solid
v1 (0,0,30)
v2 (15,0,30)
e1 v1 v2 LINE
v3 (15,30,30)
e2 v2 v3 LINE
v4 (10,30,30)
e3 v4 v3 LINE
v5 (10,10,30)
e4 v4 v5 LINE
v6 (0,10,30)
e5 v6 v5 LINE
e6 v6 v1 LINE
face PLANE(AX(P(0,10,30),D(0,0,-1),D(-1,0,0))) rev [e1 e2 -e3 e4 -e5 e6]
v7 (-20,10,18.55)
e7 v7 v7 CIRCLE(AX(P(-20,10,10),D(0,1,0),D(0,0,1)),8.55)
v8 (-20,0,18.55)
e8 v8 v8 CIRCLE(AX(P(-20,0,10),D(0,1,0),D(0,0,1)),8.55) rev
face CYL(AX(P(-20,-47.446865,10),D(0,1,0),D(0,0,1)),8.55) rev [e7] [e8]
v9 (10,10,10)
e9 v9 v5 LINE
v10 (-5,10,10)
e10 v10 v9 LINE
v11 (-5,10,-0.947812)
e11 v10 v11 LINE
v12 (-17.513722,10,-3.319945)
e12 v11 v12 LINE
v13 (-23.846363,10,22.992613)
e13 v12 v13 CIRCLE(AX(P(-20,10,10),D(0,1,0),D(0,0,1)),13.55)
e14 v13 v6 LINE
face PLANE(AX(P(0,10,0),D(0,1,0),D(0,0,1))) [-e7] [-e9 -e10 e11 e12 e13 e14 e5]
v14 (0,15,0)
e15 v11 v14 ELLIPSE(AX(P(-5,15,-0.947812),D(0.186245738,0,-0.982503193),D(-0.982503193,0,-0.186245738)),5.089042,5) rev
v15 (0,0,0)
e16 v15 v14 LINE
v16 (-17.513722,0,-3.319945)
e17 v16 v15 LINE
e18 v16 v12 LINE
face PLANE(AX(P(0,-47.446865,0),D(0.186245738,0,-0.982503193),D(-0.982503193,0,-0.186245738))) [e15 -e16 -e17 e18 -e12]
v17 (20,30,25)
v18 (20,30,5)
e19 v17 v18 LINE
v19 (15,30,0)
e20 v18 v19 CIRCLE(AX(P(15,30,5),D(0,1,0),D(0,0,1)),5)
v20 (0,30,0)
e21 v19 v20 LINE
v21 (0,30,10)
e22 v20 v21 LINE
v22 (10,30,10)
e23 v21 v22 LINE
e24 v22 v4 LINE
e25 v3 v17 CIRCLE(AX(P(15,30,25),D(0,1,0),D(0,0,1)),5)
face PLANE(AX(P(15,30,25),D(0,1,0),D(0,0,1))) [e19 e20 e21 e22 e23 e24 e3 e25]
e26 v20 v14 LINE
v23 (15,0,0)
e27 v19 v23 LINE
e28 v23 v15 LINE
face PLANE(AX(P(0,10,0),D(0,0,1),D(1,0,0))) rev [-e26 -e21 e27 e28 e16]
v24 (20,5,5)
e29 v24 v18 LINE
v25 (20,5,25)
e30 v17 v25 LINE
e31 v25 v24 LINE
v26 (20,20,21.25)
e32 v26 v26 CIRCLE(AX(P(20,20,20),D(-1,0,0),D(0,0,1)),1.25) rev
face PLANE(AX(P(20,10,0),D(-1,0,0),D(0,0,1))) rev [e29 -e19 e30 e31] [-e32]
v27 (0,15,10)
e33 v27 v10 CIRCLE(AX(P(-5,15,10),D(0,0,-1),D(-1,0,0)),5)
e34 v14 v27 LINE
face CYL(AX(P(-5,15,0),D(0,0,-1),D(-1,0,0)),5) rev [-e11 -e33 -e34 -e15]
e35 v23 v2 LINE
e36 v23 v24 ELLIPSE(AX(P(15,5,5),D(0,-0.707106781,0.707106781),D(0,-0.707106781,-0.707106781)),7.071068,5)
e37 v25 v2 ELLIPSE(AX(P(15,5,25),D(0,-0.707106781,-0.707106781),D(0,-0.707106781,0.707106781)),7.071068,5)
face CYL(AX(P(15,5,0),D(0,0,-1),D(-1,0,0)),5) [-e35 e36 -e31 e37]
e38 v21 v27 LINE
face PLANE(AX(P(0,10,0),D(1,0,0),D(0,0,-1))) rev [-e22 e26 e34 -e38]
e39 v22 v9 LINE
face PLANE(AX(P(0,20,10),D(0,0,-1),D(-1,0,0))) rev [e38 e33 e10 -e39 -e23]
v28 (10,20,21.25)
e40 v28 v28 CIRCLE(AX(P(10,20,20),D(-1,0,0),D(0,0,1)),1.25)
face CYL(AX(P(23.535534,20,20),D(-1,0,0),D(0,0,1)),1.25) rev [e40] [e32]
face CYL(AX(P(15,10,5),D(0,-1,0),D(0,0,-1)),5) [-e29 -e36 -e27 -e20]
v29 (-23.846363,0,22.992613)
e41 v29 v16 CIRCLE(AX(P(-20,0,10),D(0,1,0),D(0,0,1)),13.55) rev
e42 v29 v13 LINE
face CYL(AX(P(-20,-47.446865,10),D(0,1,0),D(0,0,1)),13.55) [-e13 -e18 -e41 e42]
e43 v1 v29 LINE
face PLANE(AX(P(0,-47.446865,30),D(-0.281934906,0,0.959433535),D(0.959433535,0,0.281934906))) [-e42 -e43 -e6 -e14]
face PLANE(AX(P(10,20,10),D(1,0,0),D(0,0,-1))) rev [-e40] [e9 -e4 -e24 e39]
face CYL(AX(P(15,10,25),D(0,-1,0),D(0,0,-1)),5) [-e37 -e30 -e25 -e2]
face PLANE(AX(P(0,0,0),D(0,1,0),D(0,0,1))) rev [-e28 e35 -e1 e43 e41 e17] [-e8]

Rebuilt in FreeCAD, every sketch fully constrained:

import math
import FreeCAD as App
import Part
import Sketcher

V = App.Vector


def edges_at(feature, points):
    """Names of the edges that pass closest to the given points."""
    edges = feature.Shape.Edges
    near = lambda p: min(range(len(edges)), key=lambda i: edges[i].distToShape(Part.Vertex(*p))[0])
    return sorted({f"Edge{near(p) + 1}" for p in points})


def add_polygon(sketch, points):
    """Adds a closed chain of lines whose ends are joined by coincident constraints."""
    first, n = sketch.GeometryCount, len(points)
    for a, b in zip(points, points[1:] + points[:1]):
        sketch.addGeometry(Part.LineSegment(App.Vector(*a, 0), App.Vector(*b, 0)), False)
    for i in range(n):
        sketch.addConstraint(Sketcher.Constraint("Coincident", first + i, 2, first + (i + 1) % n, 1))

doc = App.newDocument("Part")
params = doc.addObject("Spreadsheet::Sheet", "Params")
for row, (alias, value) in enumerate([
    ("sketch1_width", "20 mm"),
    ("sketch1_height", "30 mm"),
    ("pad1_length", "10 mm"),
    ("sketch2_width", "10 mm"),
    ("pad2_length", "10 mm"),
    ("sketch3_diameter", "17.1 mm"),
    ("sketch3_height", "30 mm"),
    ("sketch3_radius", "13.55 mm"),
    ("pad3_length", "10 mm"),
    ("fillet_radius", "5 mm"),
    ("sketch4_radius", "5 mm"),
    ("sketch4_width", "5 mm"),
    ("sketch4_height", "20 mm"),
    ("pad4_length", "10 mm"),
    ("sketch5_diameter", "2.5 mm"),
    ("pocket1_length", "10 mm"),
], start=1):
    params.set(f"A{row}", alias)
    params.set(f"B{row}", "=" + value)
    params.setAlias(f"B{row}", alias)

body = doc.addObject("PartDesign::Body", "Body")

# Sketch on XZ plane
sketch1 = doc.addObject("Sketcher::SketchObject", "Sketch")
body.addObject(sketch1)
sketch1.AttachmentSupport = (doc.XZ_Plane, [""])
sketch1.MapMode = "FlatFace"
add_polygon(sketch1, [(0, 0), (0, 30), (20, 30), (20, 0)])  # lines 0-3
sketch1.addConstraint([
    Sketcher.Constraint("Vertical", 0),
    Sketcher.Constraint("Horizontal", 1),
    Sketcher.Constraint("Vertical", 2),
    Sketcher.Constraint("Horizontal", 3),
    Sketcher.Constraint("Coincident", 3, 2, -1, 1),
    Sketcher.Constraint("DistanceX", 1, 1, 1, 2, 20.0),
    Sketcher.Constraint("DistanceY", 0, 1, 0, 2, 30.0),
])
sketch1.setExpression("Constraints[9]", "Params.sketch1_width")
sketch1.setExpression("Constraints[10]", "Params.sketch1_height")
pad1 = doc.addObject("PartDesign::Pad", "Pad")
body.addObject(pad1)
pad1.Profile = sketch1
pad1.setExpression("Length", "Params.pad1_length")
pad1.Reversed = True

# Sketch on XZ plane
sketch2 = doc.addObject("Sketcher::SketchObject", "Sketch001")
body.addObject(sketch2)
sketch2.AttachmentSupport = (doc.XZ_Plane, [""])
sketch2.MapMode = "FlatFace"
sketch2.AttachmentOffset = App.Placement(V(0, 0, -10), App.Rotation())
add_polygon(sketch2, [(0, 0), (0, 10), (10, 10), (10, 30), (20, 30), (20, 0)])  # lines 0-5
sketch2.addConstraint([
    Sketcher.Constraint("Vertical", 0),
    Sketcher.Constraint("Horizontal", 1),
    Sketcher.Constraint("Vertical", 2),
    Sketcher.Constraint("Horizontal", 3),
    Sketcher.Constraint("Vertical", 4),
    Sketcher.Constraint("Horizontal", 5),
    Sketcher.Constraint("Coincident", 5, 2, -1, 1),
    Sketcher.Constraint("Equal", 1, 3),
    Sketcher.Constraint("Equal", 3, 0),
    Sketcher.Constraint("Equal", 5, 2),
    Sketcher.Constraint("DistanceX", 1, 1, 1, 2, 10.0),
])
sketch2.setExpression("Constraints[16]", "Params.sketch2_width")
pad2 = doc.addObject("PartDesign::Pad", "Pad001")
body.addObject(pad2)
pad2.Profile = sketch2
pad2.setExpression("Length", "Params.pad2_length")
pad2.Reversed = True

# Sketch on XZ plane
sketch3 = doc.addObject("Sketcher::SketchObject", "Sketch002")
body.addObject(sketch3)
sketch3.AttachmentSupport = (doc.XZ_Plane, [""])
sketch3.MapMode = "FlatFace"
sketch3.AttachmentOffset = App.Placement(V(0, 0, -10), App.Rotation())
sketch3.addGeometry([
    Part.LineSegment(V(0, 0, 0), V(-17.513722, -3.319945, 0)),  # 0
    Part.ArcOfCircle(Part.Circle(V(-20, 10, 0), V(0, 0, 1), 13.55), math.radians(106.490982), math.radians(280.573058)),  # 1
    Part.LineSegment(V(-23.846363, 22.992613, 0), V(0, 30, 0)),  # 2
    Part.LineSegment(V(0, 30, 0), V(0, 0, 0)),  # 3
    Part.Circle(V(-20, 10, 0), V(0, 0, 1), 8.55),  # 4
], False)
sketch3.addConstraint([
    Sketcher.Constraint("Coincident", 0, 2, 1, 2),
    Sketcher.Constraint("Coincident", 1, 1, 2, 1),
    Sketcher.Constraint("Coincident", 2, 2, 3, 1),
    Sketcher.Constraint("Coincident", 3, 2, 0, 1),
    Sketcher.Constraint("Vertical", 3),
    Sketcher.Constraint("Coincident", 3, 2, -1, 1),
    Sketcher.Constraint("Coincident", 4, 3, 1, 3),
    Sketcher.Constraint("Diameter", 4, 17.1),
    Sketcher.Constraint("DistanceY", 3, 2, 3, 1, 30.0),
    Sketcher.Constraint("Radius", 1, 13.55),
    Sketcher.Constraint("DistanceX", 1, 3, -1, 1, 20.0),
    Sketcher.Constraint("DistanceY", -1, 1, 1, 3, 10.0),
    Sketcher.Constraint("DistanceX", 1, 1, 0, 2, 6.332641),
    Sketcher.Constraint("Distance", 0, 17.825614),
])
sketch3.setExpression("Constraints[7]", "Params.sketch3_diameter")
sketch3.setExpression("Constraints[8]", "Params.sketch3_height")
sketch3.setExpression("Constraints[9]", "Params.sketch3_radius")
pad3 = doc.addObject("PartDesign::Pad", "Pad002")
body.addObject(pad3)
pad3.Profile = sketch3
pad3.setExpression("Length", "Params.pad3_length")
doc.recompute()

fillet = doc.addObject("PartDesign::Fillet", "Fillet")
body.addObject(fillet)
fillet.Base = (pad3, edges_at(pad3, [
    (0, 10, 5),
    (20, 0, 15),
    (20, 10, 0),
    (20, 10, 30),
]))
fillet.setExpression("Radius", "Params.fillet_radius")

# Sketch on XZ plane
sketch4 = doc.addObject("Sketcher::SketchObject", "Sketch003")
body.addObject(sketch4)
sketch4.AttachmentSupport = (doc.XZ_Plane, [""])
sketch4.MapMode = "FlatFace"
sketch4.AttachmentOffset = App.Placement(V(0, 0, -20), App.Rotation())
sketch4.addGeometry([
    Part.LineSegment(V(10, 30, 0), V(15, 30, 0)),  # 0
    Part.ArcOfCircle(Part.Circle(V(15, 25, 0), V(0, 0, 1), 5), math.radians(0), math.radians(90)),  # 1
    Part.LineSegment(V(20, 25, 0), V(20, 5, 0)),  # 2
    Part.ArcOfCircle(Part.Circle(V(15, 5, 0), V(0, 0, 1), 5), math.radians(-90), math.radians(0)),  # 3
    Part.LineSegment(V(15, 0, 0), V(0, 0, 0)),  # 4
    Part.LineSegment(V(0, 0, 0), V(0, 10, 0)),  # 5
    Part.LineSegment(V(0, 10, 0), V(10, 10, 0)),  # 6
    Part.LineSegment(V(10, 10, 0), V(10, 30, 0)),  # 7
], False)
sketch4.addConstraint([
    Sketcher.Constraint("Tangent", 0, 2, 1, 2),
    Sketcher.Constraint("Tangent", 1, 1, 2, 1),
    Sketcher.Constraint("Tangent", 2, 2, 3, 2),
    Sketcher.Constraint("Tangent", 3, 1, 4, 1),
    Sketcher.Constraint("Coincident", 4, 2, 5, 1),
    Sketcher.Constraint("Coincident", 5, 2, 6, 1),
    Sketcher.Constraint("Coincident", 6, 2, 7, 1),
    Sketcher.Constraint("Coincident", 7, 2, 0, 1),
    Sketcher.Constraint("Horizontal", 0),
    Sketcher.Constraint("Vertical", 2),
    Sketcher.Constraint("Horizontal", 4),
    Sketcher.Constraint("Vertical", 5),
    Sketcher.Constraint("Horizontal", 6),
    Sketcher.Constraint("Vertical", 7),
    Sketcher.Constraint("Coincident", 4, 2, -1, 1),
    Sketcher.Constraint("Equal", 1, 3),
    Sketcher.Constraint("Equal", 6, 5),
    Sketcher.Constraint("Equal", 2, 7),
    Sketcher.Constraint("Radius", 1, 5.0),
    Sketcher.Constraint("DistanceX", 0, 1, 0, 2, 5.0),
    Sketcher.Constraint("DistanceY", 2, 2, 2, 1, 20.0),
])
sketch4.setExpression("Constraints[18]", "Params.sketch4_radius")
sketch4.setExpression("Constraints[19]", "Params.sketch4_width")
sketch4.setExpression("Constraints[20]", "Params.sketch4_height")
pad4 = doc.addObject("PartDesign::Pad", "Pad003")
body.addObject(pad4)
pad4.Profile = sketch4
pad4.setExpression("Length", "Params.pad4_length")
pad4.Reversed = True

# Sketch on YZ plane
sketch5 = doc.addObject("Sketcher::SketchObject", "Sketch004")
body.addObject(sketch5)
sketch5.AttachmentSupport = (doc.YZ_Plane, [""])
sketch5.MapMode = "FlatFace"
sketch5.AttachmentOffset = App.Placement(V(0, 0, 10), App.Rotation())
sketch5.addGeometry(Part.Circle(V(20, 20, 0), V(0, 0, 1), 1.25), False)
sketch5.addConstraint([
    Sketcher.Constraint("Diameter", 0, 2.5),
    Sketcher.Constraint("DistanceX", -1, 1, 0, 3, 20.0),
    Sketcher.Constraint("DistanceY", -1, 1, 0, 3, 20.0),
])
sketch5.setExpression("Constraints[0]", "Params.sketch5_diameter")
pocket1 = doc.addObject("PartDesign::Pocket", "Pocket")
body.addObject(pocket1)
pocket1.Profile = sketch5
pocket1.setExpression("Length", "Params.pocket1_length")
pocket1.Reversed = True

doc.recompute()
